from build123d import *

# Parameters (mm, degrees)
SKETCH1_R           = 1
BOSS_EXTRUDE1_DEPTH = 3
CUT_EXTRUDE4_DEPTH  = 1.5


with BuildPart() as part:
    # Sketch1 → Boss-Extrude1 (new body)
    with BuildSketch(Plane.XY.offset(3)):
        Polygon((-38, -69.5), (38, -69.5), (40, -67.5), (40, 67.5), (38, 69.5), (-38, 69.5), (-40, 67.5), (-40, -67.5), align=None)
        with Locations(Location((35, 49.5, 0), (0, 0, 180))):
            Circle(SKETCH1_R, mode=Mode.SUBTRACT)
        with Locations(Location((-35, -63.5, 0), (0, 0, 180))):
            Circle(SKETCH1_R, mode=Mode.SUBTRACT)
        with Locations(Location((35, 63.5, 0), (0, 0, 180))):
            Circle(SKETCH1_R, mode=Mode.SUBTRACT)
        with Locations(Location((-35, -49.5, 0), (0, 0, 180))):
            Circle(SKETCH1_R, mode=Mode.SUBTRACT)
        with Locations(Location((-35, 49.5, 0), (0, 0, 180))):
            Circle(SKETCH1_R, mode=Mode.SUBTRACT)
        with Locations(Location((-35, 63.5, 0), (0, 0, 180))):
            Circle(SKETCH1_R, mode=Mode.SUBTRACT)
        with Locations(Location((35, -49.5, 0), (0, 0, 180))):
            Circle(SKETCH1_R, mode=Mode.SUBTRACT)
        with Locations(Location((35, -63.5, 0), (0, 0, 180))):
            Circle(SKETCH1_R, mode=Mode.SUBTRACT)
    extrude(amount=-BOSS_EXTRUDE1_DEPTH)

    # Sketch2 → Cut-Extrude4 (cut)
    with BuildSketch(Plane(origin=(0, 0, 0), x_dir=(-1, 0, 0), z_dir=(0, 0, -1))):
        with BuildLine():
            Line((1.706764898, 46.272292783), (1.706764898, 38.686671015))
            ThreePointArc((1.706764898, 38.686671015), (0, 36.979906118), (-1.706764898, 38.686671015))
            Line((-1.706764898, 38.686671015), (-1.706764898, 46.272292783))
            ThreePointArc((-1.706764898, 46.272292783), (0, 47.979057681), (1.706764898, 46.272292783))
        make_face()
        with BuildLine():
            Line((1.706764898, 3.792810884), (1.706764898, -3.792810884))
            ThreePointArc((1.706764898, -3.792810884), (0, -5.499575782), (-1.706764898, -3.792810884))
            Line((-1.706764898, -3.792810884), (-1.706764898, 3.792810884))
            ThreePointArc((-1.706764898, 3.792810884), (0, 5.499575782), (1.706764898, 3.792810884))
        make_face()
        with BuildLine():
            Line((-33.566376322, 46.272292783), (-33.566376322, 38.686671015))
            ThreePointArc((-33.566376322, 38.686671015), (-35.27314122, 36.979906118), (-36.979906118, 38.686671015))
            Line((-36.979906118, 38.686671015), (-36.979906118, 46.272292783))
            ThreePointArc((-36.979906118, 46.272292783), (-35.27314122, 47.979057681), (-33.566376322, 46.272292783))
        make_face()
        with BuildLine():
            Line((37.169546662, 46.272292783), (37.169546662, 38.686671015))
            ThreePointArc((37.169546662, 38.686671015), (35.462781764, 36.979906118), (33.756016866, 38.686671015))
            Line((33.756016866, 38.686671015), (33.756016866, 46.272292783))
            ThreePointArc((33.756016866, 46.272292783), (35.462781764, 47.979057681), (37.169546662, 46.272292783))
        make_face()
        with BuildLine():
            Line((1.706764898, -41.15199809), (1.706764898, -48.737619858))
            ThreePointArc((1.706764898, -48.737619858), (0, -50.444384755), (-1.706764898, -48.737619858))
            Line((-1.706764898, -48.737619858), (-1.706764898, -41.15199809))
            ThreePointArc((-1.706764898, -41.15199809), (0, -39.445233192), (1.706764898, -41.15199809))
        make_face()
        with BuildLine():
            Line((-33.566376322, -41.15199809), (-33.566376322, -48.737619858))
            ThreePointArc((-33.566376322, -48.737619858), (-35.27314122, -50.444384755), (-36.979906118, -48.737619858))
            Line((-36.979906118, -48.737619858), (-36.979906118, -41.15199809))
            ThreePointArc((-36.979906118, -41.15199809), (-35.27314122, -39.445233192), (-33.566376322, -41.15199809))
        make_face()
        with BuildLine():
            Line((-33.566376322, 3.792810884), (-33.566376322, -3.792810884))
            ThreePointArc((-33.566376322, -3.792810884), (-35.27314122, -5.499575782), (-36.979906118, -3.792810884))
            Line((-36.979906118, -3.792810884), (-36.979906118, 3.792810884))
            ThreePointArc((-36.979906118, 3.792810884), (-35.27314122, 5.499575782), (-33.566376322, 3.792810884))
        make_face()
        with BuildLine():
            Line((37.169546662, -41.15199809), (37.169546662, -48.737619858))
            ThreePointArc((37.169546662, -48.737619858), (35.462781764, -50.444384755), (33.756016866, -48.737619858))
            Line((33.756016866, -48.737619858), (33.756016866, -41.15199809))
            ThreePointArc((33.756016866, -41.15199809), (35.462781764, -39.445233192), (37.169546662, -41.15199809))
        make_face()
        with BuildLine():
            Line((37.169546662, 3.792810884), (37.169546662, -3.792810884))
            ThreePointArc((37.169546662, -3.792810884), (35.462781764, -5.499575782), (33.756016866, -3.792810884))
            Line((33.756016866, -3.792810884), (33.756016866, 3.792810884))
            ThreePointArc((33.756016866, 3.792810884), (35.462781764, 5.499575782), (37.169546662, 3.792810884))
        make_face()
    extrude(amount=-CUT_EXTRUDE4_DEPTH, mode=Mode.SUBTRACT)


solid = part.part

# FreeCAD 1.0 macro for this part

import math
import FreeCAD as App
import Part
import Sketcher
Q = App.Units.Quantity


def add_polygon(sketch, points):
    """Adds a closed chain of lines whose ends are joined by coincident constraints."""
    first, n = sketch.GeometryCount, len(points)
    for a, b in zip(points, points[1:] + points[:1]):
        sketch.addGeometry(Part.LineSegment(App.Vector(*a, 0), App.Vector(*b, 0)), False)
    for i in range(n):
        sketch.addConstraint(Sketcher.Constraint("Coincident", first + i, 2, first + (i + 1) % n, 1))

doc = App.newDocument("Part")
params = doc.addObject("Spreadsheet::Sheet", "Params")
for row, (alias, value) in enumerate([
    ("sketch1_diameter", "2 mm"),
    ("sketch1_width", "76 mm"),
    ("sketch1_height", "135 mm"),
    ("pad1_length", "3 mm"),
    ("pocket1_length", "1.5 mm"),
], start=1):
    params.set(f"A{row}", alias)
    params.set(f"B{row}", "=" + value)
    params.setAlias(f"B{row}", alias)

body = doc.addObject("PartDesign::Body", "Body")

# Sketch on XY plane
sketch1 = body.newObject("Sketcher::SketchObject", "Sketch")
sketch1.AttachmentSupport = (doc.getObject("XY_Plane"), [""])
sketch1.MapMode = "FlatFace"
sketch1.AttachmentOffset = App.Placement(App.Vector(0, 0, 3), App.Rotation())
add_polygon(sketch1, [(-38, -69.5), (38, -69.5), (40, -67.5), (40, 67.5), (38, 69.5), (-38, 69.5), (-40, 67.5), (-40, -67.5)])  # lines 0-7
sketch1.addGeometry(Part.Circle(App.Vector(-35, -63.5, 0), App.Vector(0, 0, 1), 1), False)  # 8
sketch1.addGeometry(Part.Circle(App.Vector(-35, -49.5, 0), App.Vector(0, 0, 1), 1), False)  # 9
sketch1.addGeometry(Part.Circle(App.Vector(35, -63.5, 0), App.Vector(0, 0, 1), 1), False)  # 10
sketch1.addGeometry(Part.Circle(App.Vector(35, -49.5, 0), App.Vector(0, 0, 1), 1), False)  # 11
sketch1.addGeometry(Part.Circle(App.Vector(-35, 49.5, 0), App.Vector(0, 0, 1), 1), False)  # 12
sketch1.addGeometry(Part.Circle(App.Vector(-35, 63.5, 0), App.Vector(0, 0, 1), 1), False)  # 13
sketch1.addGeometry(Part.Circle(App.Vector(35, 49.5, 0), App.Vector(0, 0, 1), 1), False)  # 14
sketch1.addGeometry(Part.Circle(App.Vector(35, 63.5, 0), App.Vector(0, 0, 1), 1), False)  # 15
sketch1.addConstraint([
    Sketcher.Constraint("Horizontal", 0),
    Sketcher.Constraint("Vertical", 2),
    Sketcher.Constraint("Horizontal", 4),
    Sketcher.Constraint("Vertical", 6),
    Sketcher.Constraint("Equal", 8, 9),
    Sketcher.Constraint("Equal", 9, 10),
    Sketcher.Constraint("Equal", 10, 11),
    Sketcher.Constraint("Equal", 11, 12),
    Sketcher.Constraint("Equal", 12, 13),
    Sketcher.Constraint("Equal", 13, 14),
    Sketcher.Constraint("Equal", 14, 15),
    Sketcher.Constraint("Symmetric", 11, 3, 12, 3, -1, 1),
    Sketcher.Constraint("Symmetric", 10, 3, 13, 3, -1, 1),
    Sketcher.Constraint("Symmetric", 9, 3, 14, 3, -1, 1),
    Sketcher.Constraint("Symmetric", 8, 3, 15, 3, -1, 1),
    Sketcher.Constraint("Symmetric", 0, 2, 4, 2, -1, 1),
    Sketcher.Constraint("Symmetric", 1, 2, 5, 2, -1, 1),
    Sketcher.Constraint("Symmetric", 8, 3, 10, 3, -2),
    Sketcher.Constraint("Symmetric", 9, 3, 11, 3, -2),
    Sketcher.Constraint("Perpendicular", 1, 3),
    Sketcher.Constraint("Perpendicular", 5, 7),
    Sketcher.Constraint("Horizontal", 2, 2, 5, 2),
    Sketcher.Constraint("Horizontal", 1, 2, 6, 2),
    Sketcher.Constraint("Vertical", 8, 3, 9, 3),
    Sketcher.Constraint("Vertical", 0, 2, 3, 2),
    Sketcher.Constraint("Diameter", 8, Q("2 mm")),
    Sketcher.Constraint("DistanceX", 0, 1, 0, 2, Q("76 mm")),
    Sketcher.Constraint("DistanceY", 2, 1, 2, 2, Q("135 mm")),
    Sketcher.Constraint("DistanceX", 8, 3, -1, 1, Q("35 mm")),
    Sketcher.Constraint("DistanceX", -1, 1, 1, 2, Q("40 mm")),
    Sketcher.Constraint("DistanceY", 8, 3, 9, 3, Q("14 mm")),
    Sketcher.Constraint("DistanceY", 9, 3, 12, 3, Q("99 mm")),
])
sketch1.setExpression("Constraints[33]", "Params.sketch1_diameter")
sketch1.setExpression("Constraints[34]", "Params.sketch1_width")
sketch1.setExpression("Constraints[35]", "Params.sketch1_height")
pad1 = body.newObject("PartDesign::Pad", "Pad")
pad1.Profile = sketch1
pad1.setExpression("Length", "Params.pad1_length")
pad1.Reversed = True

# Sketch on XY plane
sketch2 = body.newObject("Sketcher::SketchObject", "Sketch001")
sketch2.AttachmentSupport = (doc.getObject("XY_Plane"), [""])
sketch2.MapMode = "FlatFace"
sketch2.addGeometry([
    Part.LineSegment(App.Vector(-1.706765, 38.686671, 0), App.Vector(-1.706765, 46.272293, 0)),  # 0
    Part.ArcOfCircle(Part.Circle(App.Vector(0, 46.272293, 0), App.Vector(0, 0, 1), 1.706765), math.radians(0), math.radians(180)),  # 1
    Part.LineSegment(App.Vector(1.706765, 46.272293, 0), App.Vector(1.706765, 38.686671, 0)),  # 2
    Part.ArcOfCircle(Part.Circle(App.Vector(0, 38.686671, 0), App.Vector(0, 0, 1), 1.706765), math.radians(-180), math.radians(0)),  # 3
    Part.LineSegment(App.Vector(-1.706765, -3.792811, 0), App.Vector(-1.706765, 3.792811, 0)),  # 4
    Part.ArcOfCircle(Part.Circle(App.Vector(0, 3.792811, 0), App.Vector(0, 0, 1), 1.706765), math.radians(0), math.radians(180)),  # 5
    Part.LineSegment(App.Vector(1.706765, 3.792811, 0), App.Vector(1.706765, -3.792811, 0)),  # 6
    Part.ArcOfCircle(Part.Circle(App.Vector(0, -3.792811, 0), App.Vector(0, 0, 1), 1.706765), math.radians(180), math.radians(360)),  # 7
    Part.LineSegment(App.Vector(33.566376, 38.686671, 0), App.Vector(33.566376, 46.272293, 0)),  # 8
    Part.ArcOfCircle(Part.Circle(App.Vector(35.273141, 46.272293, 0), App.Vector(0, 0, 1), 1.706765), math.radians(0), math.radians(180)),  # 9
    Part.LineSegment(App.Vector(36.979906, 46.272293, 0), App.Vector(36.979906, 38.686671, 0)),  # 10
    Part.ArcOfCircle(Part.Circle(App.Vector(35.273141, 38.686671, 0), App.Vector(0, 0, 1), 1.706765), math.radians(-180), math.radians(0)),  # 11
    Part.LineSegment(App.Vector(-37.169547, 38.686671, 0), App.Vector(-37.169547, 46.272293, 0)),  # 12
    Part.ArcOfCircle(Part.Circle(App.Vector(-35.462782, 46.272293, 0), App.Vector(0, 0, 1), 1.706765), math.radians(0), math.radians(180)),  # 13
    Part.LineSegment(App.Vector(-33.756017, 46.272293, 0), App.Vector(-33.756017, 38.686671, 0)),  # 14
    Part.ArcOfCircle(Part.Circle(App.Vector(-35.462782, 38.686671, 0), App.Vector(0, 0, 1), 1.706765), math.radians(-180), math.radians(0)),  # 15
    Part.LineSegment(App.Vector(-1.706765, -48.73762, 0), App.Vector(-1.706765, -41.151998, 0)),  # 16
    Part.ArcOfCircle(Part.Circle(App.Vector(0, -41.151998, 0), App.Vector(0, 0, 1), 1.706765), math.radians(0), math.radians(180)),  # 17
    Part.LineSegment(App.Vector(1.706765, -41.151998, 0), App.Vector(1.706765, -48.73762, 0)),  # 18
    Part.ArcOfCircle(Part.Circle(App.Vector(0, -48.73762, 0), App.Vector(0, 0, 1), 1.706765), math.radians(-180), math.radians(0)),  # 19
    Part.LineSegment(App.Vector(33.566376, -48.73762, 0), App.Vector(33.566376, -41.151998, 0)),  # 20
    Part.ArcOfCircle(Part.Circle(App.Vector(35.273141, -41.151998, 0), App.Vector(0, 0, 1), 1.706765), math.radians(0), math.radians(180)),  # 21
    Part.LineSegment(App.Vector(36.979906, -41.151998, 0), App.Vector(36.979906, -48.73762, 0)),  # 22
    Part.ArcOfCircle(Part.Circle(App.Vector(35.273141, -48.73762, 0), App.Vector(0, 0, 1), 1.706765), math.radians(-180), math.radians(0)),  # 23
    Part.LineSegment(App.Vector(33.566376, -3.792811, 0), App.Vector(33.566376, 3.792811, 0)),  # 24
    Part.ArcOfCircle(Part.Circle(App.Vector(35.273141, 3.792811, 0), App.Vector(0, 0, 1), 1.706765), math.radians(0), math.radians(180)),  # 25
    Part.LineSegment(App.Vector(36.979906, 3.792811, 0), App.Vector(36.979906, -3.792811, 0)),  # 26
    Part.ArcOfCircle(Part.Circle(App.Vector(35.273141, -3.792811, 0), App.Vector(0, 0, 1), 1.706765), math.radians(180), math.radians(360)),  # 27
    Part.LineSegment(App.Vector(-37.169547, -48.73762, 0), App.Vector(-37.169547, -41.151998, 0)),  # 28
    Part.ArcOfCircle(Part.Circle(App.Vector(-35.462782, -41.151998, 0), App.Vector(0, 0, 1), 1.706765), math.radians(0), math.radians(180)),  # 29
    Part.LineSegment(App.Vector(-33.756017, -41.151998, 0), App.Vector(-33.756017, -48.73762, 0)),  # 30
    Part.ArcOfCircle(Part.Circle(App.Vector(-35.462782, -48.73762, 0), App.Vector(0, 0, 1), 1.706765), math.radians(-180), math.radians(0)),  # 31
    Part.LineSegment(App.Vector(-37.169547, -3.792811, 0), App.Vector(-37.169547, 3.792811, 0)),  # 32
    Part.ArcOfCircle(Part.Circle(App.Vector(-35.462782, 3.792811, 0), App.Vector(0, 0, 1), 1.706765), math.radians(0), math.radians(180)),  # 33
    Part.LineSegment(App.Vector(-33.756017, 3.792811, 0), App.Vector(-33.756017, -3.792811, 0)),  # 34
    Part.ArcOfCircle(Part.Circle(App.Vector(-35.462782, -3.792811, 0), App.Vector(0, 0, 1), 1.706765), math.radians(180), math.radians(360)),  # 35
], False)
sketch2.addConstraint([
    Sketcher.Constraint("Tangent", 0, 2, 1, 2),
    Sketcher.Constraint("Tangent", 1, 1, 2, 1),
    Sketcher.Constraint("Tangent", 2, 2, 3, 2),
    Sketcher.Constraint("Tangent", 3, 1, 0, 1),
    Sketcher.Constraint("Tangent", 4, 2, 5, 2),
    Sketcher.Constraint("Tangent", 5, 1, 6, 1),
    Sketcher.Constraint("Tangent", 6, 2, 7, 2),
    Sketcher.Constraint("Tangent", 7, 1, 4, 1),
    Sketcher.Constraint("Tangent", 8, 2, 9, 2),
    Sketcher.Constraint("Tangent", 9, 1, 10, 1),
    Sketcher.Constraint("Tangent", 10, 2, 11, 2),
    Sketcher.Constraint("Tangent", 11, 1, 8, 1),
    Sketcher.Constraint("Tangent", 12, 2, 13, 2),
    Sketcher.Constraint("Tangent", 13, 1, 14, 1),
    Sketcher.Constraint("Tangent", 14, 2, 15, 2),
    Sketcher.Constraint("Tangent", 15, 1, 12, 1),
    Sketcher.Constraint("Tangent", 16, 2, 17, 2),
    Sketcher.Constraint("Tangent", 17, 1, 18, 1),
    Sketcher.Constraint("Tangent", 18, 2, 19, 2),
    Sketcher.Constraint("Tangent", 19, 1, 16, 1),
    Sketcher.Constraint("Tangent", 20, 2, 21, 2),
    Sketcher.Constraint("Tangent", 21, 1, 22, 1),
    Sketcher.Constraint("Tangent", 22, 2, 23, 2),
    Sketcher.Constraint("Tangent", 23, 1, 20, 1),
    Sketcher.Constraint("Tangent", 24, 2, 25, 2),
    Sketcher.Constraint("Tangent", 25, 1, 26, 1),
    Sketcher.Constraint("Tangent", 26, 2, 27, 2),
    Sketcher.Constraint("Tangent", 27, 1, 24, 1),
    Sketcher.Constraint("Tangent", 28, 2, 29, 2),
    Sketcher.Constraint("Tangent", 29, 1, 30, 1),
    Sketcher.Constraint("Tangent", 30, 2, 31, 2),
    Sketcher.Constraint("Tangent", 31, 1, 28, 1),
    Sketcher.Constraint("Tangent", 32, 2, 33, 2),
    Sketcher.Constraint("Tangent", 33, 1, 34, 1),
    Sketcher.Constraint("Tangent", 34, 2, 35, 2),
    Sketcher.Constraint("Tangent", 35, 1, 32, 1),
    Sketcher.Constraint("Vertical", 0),
    Sketcher.Constraint("Vertical", 2),
    Sketcher.Constraint("Vertical", 4),
    Sketcher.Constraint("Vertical", 6),
    Sketcher.Constraint("Vertical", 8),
    Sketcher.Constraint("Vertical", 10),
    Sketcher.Constraint("Vertical", 12),
    Sketcher.Constraint("Vertical", 14),
    Sketcher.Constraint("Vertical", 16),
    Sketcher.Constraint("Vertical", 18),
    Sketcher.Constraint("Vertical", 20),
    Sketcher.Constraint("Vertical", 22),
    Sketcher.Constraint("Vertical", 24),
    Sketcher.Constraint("Vertical", 26),
    Sketcher.Constraint("Vertical", 28),
    Sketcher.Constraint("Vertical", 30),
    Sketcher.Constraint("Vertical", 32),
    Sketcher.Constraint("Vertical", 34),
    Sketcher.Constraint("Equal", 3, 5),
    Sketcher.Constraint("Equal", 7, 9),
    Sketcher.Constraint("Equal", 11, 13),
    Sketcher.Constraint("Equal", 15, 17),
    Sketcher.Constraint("Equal", 19, 21),
    Sketcher.Constraint("Equal", 23, 25),
    Sketcher.Constraint("Equal", 27, 29),
    Sketcher.Constraint("Equal", 31, 33),
    Sketcher.Constraint("Symmetric", 5, 3, 7, 3, -1, 1),
    Sketcher.Constraint("PointOnObject", 1, 3, -2),
    Sketcher.Constraint("PointOnObject", 17, 3, -2),
    Sketcher.Constraint("Horizontal", 1, 3, 9, 3),
    Sketcher.Constraint("Horizontal", 3, 3, 11, 3),
    Sketcher.Constraint("Horizontal", 9, 3, 13, 3),
    Sketcher.Constraint("Horizontal", 11, 3, 15, 3),
    Sketcher.Constraint("Horizontal", 17, 3, 21, 3),
    Sketcher.Constraint("Horizontal", 19, 3, 23, 3),
    Sketcher.Constraint("Horizontal", 5, 3, 25, 3),
    Sketcher.Constraint("Horizontal", 7, 3, 27, 3),
    Sketcher.Constraint("Horizontal", 21, 3, 29, 3),
    Sketcher.Constraint("Horizontal", 23, 3, 31, 3),
    Sketcher.Constraint("Horizontal", 25, 3, 33, 3),
    Sketcher.Constraint("Horizontal", 27, 3, 35, 3),
    Sketcher.Constraint("Vertical", 11, 3, 21, 3),
    Sketcher.Constraint("Vertical", 23, 3, 25, 3),
    Sketcher.Constraint("Vertical", 15, 3, 29, 3),
    Sketcher.Constraint("Vertical", 31, 3, 33, 3),
    Sketcher.Constraint("Equal", 2, 4),
    Sketcher.Constraint("Equal", 14, 16),
    Sketcher.Constraint("DistanceY", 17, 3, -1, 1, Q("41.151998 mm")),
    Sketcher.Constraint("Radius", 1, Q("1.706765 mm")),
    Sketcher.Constraint("DistanceY", 0, 1, 0, 2, Q("7.585622 mm")),
    Sketcher.Constraint("DistanceY", -1, 1, 3, 3, Q("38.686671 mm")),
    Sketcher.Constraint("DistanceX", -1, 1, 9, 3, Q("35.273141 mm")),
    Sketcher.Constraint("DistanceX", 13, 3, -1, 1, Q("35.462782 mm")),
])
pocket1 = body.newObject("PartDesign::Pocket", "Pocket")
pocket1.Profile = sketch2
pocket1.setExpression("Length", "Params.pocket1_length")
pocket1.Reversed = True

doc.recompute()
